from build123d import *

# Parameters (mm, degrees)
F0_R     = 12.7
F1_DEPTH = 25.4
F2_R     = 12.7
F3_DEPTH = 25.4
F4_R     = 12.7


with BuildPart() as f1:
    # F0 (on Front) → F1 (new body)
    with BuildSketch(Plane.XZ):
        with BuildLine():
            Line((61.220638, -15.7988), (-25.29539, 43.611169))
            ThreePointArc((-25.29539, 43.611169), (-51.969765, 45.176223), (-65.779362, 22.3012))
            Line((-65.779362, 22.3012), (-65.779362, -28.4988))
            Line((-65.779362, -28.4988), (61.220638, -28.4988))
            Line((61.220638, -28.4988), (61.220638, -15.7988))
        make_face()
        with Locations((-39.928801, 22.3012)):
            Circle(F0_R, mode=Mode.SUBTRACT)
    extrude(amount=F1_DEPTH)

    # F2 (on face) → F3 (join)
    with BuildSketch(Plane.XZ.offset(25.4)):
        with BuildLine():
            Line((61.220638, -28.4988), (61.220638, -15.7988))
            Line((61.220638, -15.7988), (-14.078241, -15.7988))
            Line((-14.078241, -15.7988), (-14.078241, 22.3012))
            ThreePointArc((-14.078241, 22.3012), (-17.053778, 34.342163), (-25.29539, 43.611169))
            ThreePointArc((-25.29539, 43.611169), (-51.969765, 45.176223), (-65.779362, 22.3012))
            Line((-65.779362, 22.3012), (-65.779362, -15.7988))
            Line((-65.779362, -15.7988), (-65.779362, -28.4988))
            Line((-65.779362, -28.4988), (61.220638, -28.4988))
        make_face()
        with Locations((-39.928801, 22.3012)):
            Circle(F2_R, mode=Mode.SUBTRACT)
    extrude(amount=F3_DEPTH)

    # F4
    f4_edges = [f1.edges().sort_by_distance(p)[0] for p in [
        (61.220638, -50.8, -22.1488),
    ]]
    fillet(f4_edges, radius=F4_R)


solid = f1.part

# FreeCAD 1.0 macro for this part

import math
import FreeCAD as App
import Part
import Sketcher
Q = App.Units.Quantity


def edges_at(feature, points):
    """Names of the edges that pass closest to the given points."""
    edges = feature.Shape.Edges
    near = lambda p: min(range(len(edges)), key=lambda i: edges[i].distToShape(Part.Vertex(*p))[0])
    return sorted({f"Edge{near(p) + 1}" for p in points})

doc = App.newDocument("Part")
body = doc.addObject("PartDesign::Body", "Body")

# Sketch on XZ plane
sketch1 = body.newObject("Sketcher::SketchObject", "Sketch")
sketch1.AttachmentSupport = (doc.getObject("XZ_Plane"), [""])
sketch1.MapMode = "FlatFace"
sketch1.addGeometry([
    Part.LineSegment(App.Vector(61, -16, 0), App.Vector(-25, 44, 0)),  # 0
    Part.ArcOfCircle(Part.Circle(App.Vector(-40, 22, 0), App.Vector(0, 0, 1), 26), math.radians(56), math.radians(180)),  # 1
    Part.LineSegment(App.Vector(-66, 22, 0), App.Vector(-66, -28, 0)),  # 2
    Part.LineSegment(App.Vector(-66, -28, 0), App.Vector(61, -28, 0)),  # 3
    Part.LineSegment(App.Vector(61, -28, 0), App.Vector(61, -16, 0)),  # 4
    Part.Circle(App.Vector(-40, 22, 0), App.Vector(0, 0, 1), 13),  # 5
], False)
sketch1.addConstraint([
    Sketcher.Constraint("Tangent", 0, 2, 1, 1),
    Sketcher.Constraint("Tangent", 1, 2, 2, 1),
    Sketcher.Constraint("Coincident", 2, 2, 3, 1),
    Sketcher.Constraint("Coincident", 3, 2, 4, 1),
    Sketcher.Constraint("Coincident", 4, 2, 0, 1),
    Sketcher.Constraint("Vertical", 2),
    Sketcher.Constraint("Horizontal", 3),
    Sketcher.Constraint("Vertical", 4),
    Sketcher.Constraint("Coincident", 5, 3, 1, 3),
    Sketcher.Constraint("Diameter", 5, Q("1 in")),
    Sketcher.Constraint("DistanceX", 3, 1, 3, 2, Q("5 in")),
    Sketcher.Constraint("DistanceY", 2, 2, 2, 1, Q("2 in")),
    Sketcher.Constraint("DistanceY", 4, 1, 4, 2, Q("0.5 in")),
    Sketcher.Constraint("DistanceX", 1, 3, -1, 1, Q("1.572 in")),
    Sketcher.Constraint("DistanceY", -1, 1, 1, 3, Q("0.878 in")),
    Sketcher.Constraint("Radius", 1, 25.850561),
])
pad1 = body.newObject("PartDesign::Pad", "Pad")
pad1.Profile = sketch1
pad1.Length = Q("1 in")

# Sketch on XZ plane
sketch2 = body.newObject("Sketcher::SketchObject", "Sketch001")
sketch2.AttachmentSupport = (doc.getObject("XZ_Plane"), [""])
sketch2.MapMode = "FlatFace"
sketch2.AttachmentOffset = App.Placement(App.Vector(0, 0, 1 * 25.4), App.Rotation())
sketch2.addGeometry([
    Part.LineSegment(App.Vector(61, -28, 0), App.Vector(61, -16, 0)),  # 0
    Part.LineSegment(App.Vector(61, -16, 0), App.Vector(-14, -16, 0)),  # 1
    Part.LineSegment(App.Vector(-14, -16, 0), App.Vector(-14, 22, 0)),  # 2
    Part.ArcOfCircle(Part.Circle(App.Vector(-40, 22, 0), App.Vector(0, 0, 1), 26), math.radians(0), math.radians(56)),  # 3
    Part.ArcOfCircle(Part.Circle(App.Vector(-40, 22, 0), App.Vector(0, 0, 1), 26), math.radians(56), math.radians(180)),  # 4
    Part.LineSegment(App.Vector(-66, 22, 0), App.Vector(-66, -28, 0)),  # 5
    Part.LineSegment(App.Vector(-66, -28, 0), App.Vector(61, -28, 0)),  # 6
    Part.Circle(App.Vector(-40, 22, 0), App.Vector(0, 0, 1), 13),  # 7
], False)
sketch2.addConstraint([
    Sketcher.Constraint("Coincident", 0, 2, 1, 1),
    Sketcher.Constraint("Coincident", 1, 2, 2, 1),
    Sketcher.Constraint("Tangent", 2, 2, 3, 1),
    Sketcher.Constraint("Tangent", 3, 2, 4, 1),
    Sketcher.Constraint("Tangent", 4, 2, 5, 1),
    Sketcher.Constraint("Coincident", 5, 2, 6, 1),
    Sketcher.Constraint("Coincident", 6, 2, 0, 1),
    Sketcher.Constraint("Vertical", 0),
    Sketcher.Constraint("Horizontal", 1),
    Sketcher.Constraint("Vertical", 2),
    Sketcher.Constraint("Vertical", 5),
    Sketcher.Constraint("Horizontal", 6),
    Sketcher.Constraint("Coincident", 7, 3, 3, 3),
    Sketcher.Constraint("Equal", 3, 4),
    Sketcher.Constraint("Diameter", 7, Q("1 in")),
    Sketcher.Constraint("DistanceX", 6, 1, 6, 2, Q("5 in")),
    Sketcher.Constraint("DistanceY", 5, 2, 5, 1, Q("2 in")),
    Sketcher.Constraint("DistanceY", 0, 1, 0, 2, Q("0.5 in")),
    Sketcher.Constraint("DistanceX", 3, 3, -1, 1, Q("1.5720001 in")),
    Sketcher.Constraint("DistanceY", -1, 1, 3, 3, Q("0.878 in")),
    Sketcher.Constraint("Radius", 3, 25.850561),
    Sketcher.Constraint("DistanceX", 3, 2, -1, 1, 25.29539),
])
pad2 = body.newObject("PartDesign::Pad", "Pad001")
pad2.Profile = sketch2
pad2.Length = Q("1 in")
doc.recompute()

fillet = body.newObject("PartDesign::Fillet", "Fillet")
fillet.Base = (pad2, edges_at(pad2, [(61.221, -50.8, -22.149)]))
fillet.Radius = Q("0.5 in")

doc.recompute()
